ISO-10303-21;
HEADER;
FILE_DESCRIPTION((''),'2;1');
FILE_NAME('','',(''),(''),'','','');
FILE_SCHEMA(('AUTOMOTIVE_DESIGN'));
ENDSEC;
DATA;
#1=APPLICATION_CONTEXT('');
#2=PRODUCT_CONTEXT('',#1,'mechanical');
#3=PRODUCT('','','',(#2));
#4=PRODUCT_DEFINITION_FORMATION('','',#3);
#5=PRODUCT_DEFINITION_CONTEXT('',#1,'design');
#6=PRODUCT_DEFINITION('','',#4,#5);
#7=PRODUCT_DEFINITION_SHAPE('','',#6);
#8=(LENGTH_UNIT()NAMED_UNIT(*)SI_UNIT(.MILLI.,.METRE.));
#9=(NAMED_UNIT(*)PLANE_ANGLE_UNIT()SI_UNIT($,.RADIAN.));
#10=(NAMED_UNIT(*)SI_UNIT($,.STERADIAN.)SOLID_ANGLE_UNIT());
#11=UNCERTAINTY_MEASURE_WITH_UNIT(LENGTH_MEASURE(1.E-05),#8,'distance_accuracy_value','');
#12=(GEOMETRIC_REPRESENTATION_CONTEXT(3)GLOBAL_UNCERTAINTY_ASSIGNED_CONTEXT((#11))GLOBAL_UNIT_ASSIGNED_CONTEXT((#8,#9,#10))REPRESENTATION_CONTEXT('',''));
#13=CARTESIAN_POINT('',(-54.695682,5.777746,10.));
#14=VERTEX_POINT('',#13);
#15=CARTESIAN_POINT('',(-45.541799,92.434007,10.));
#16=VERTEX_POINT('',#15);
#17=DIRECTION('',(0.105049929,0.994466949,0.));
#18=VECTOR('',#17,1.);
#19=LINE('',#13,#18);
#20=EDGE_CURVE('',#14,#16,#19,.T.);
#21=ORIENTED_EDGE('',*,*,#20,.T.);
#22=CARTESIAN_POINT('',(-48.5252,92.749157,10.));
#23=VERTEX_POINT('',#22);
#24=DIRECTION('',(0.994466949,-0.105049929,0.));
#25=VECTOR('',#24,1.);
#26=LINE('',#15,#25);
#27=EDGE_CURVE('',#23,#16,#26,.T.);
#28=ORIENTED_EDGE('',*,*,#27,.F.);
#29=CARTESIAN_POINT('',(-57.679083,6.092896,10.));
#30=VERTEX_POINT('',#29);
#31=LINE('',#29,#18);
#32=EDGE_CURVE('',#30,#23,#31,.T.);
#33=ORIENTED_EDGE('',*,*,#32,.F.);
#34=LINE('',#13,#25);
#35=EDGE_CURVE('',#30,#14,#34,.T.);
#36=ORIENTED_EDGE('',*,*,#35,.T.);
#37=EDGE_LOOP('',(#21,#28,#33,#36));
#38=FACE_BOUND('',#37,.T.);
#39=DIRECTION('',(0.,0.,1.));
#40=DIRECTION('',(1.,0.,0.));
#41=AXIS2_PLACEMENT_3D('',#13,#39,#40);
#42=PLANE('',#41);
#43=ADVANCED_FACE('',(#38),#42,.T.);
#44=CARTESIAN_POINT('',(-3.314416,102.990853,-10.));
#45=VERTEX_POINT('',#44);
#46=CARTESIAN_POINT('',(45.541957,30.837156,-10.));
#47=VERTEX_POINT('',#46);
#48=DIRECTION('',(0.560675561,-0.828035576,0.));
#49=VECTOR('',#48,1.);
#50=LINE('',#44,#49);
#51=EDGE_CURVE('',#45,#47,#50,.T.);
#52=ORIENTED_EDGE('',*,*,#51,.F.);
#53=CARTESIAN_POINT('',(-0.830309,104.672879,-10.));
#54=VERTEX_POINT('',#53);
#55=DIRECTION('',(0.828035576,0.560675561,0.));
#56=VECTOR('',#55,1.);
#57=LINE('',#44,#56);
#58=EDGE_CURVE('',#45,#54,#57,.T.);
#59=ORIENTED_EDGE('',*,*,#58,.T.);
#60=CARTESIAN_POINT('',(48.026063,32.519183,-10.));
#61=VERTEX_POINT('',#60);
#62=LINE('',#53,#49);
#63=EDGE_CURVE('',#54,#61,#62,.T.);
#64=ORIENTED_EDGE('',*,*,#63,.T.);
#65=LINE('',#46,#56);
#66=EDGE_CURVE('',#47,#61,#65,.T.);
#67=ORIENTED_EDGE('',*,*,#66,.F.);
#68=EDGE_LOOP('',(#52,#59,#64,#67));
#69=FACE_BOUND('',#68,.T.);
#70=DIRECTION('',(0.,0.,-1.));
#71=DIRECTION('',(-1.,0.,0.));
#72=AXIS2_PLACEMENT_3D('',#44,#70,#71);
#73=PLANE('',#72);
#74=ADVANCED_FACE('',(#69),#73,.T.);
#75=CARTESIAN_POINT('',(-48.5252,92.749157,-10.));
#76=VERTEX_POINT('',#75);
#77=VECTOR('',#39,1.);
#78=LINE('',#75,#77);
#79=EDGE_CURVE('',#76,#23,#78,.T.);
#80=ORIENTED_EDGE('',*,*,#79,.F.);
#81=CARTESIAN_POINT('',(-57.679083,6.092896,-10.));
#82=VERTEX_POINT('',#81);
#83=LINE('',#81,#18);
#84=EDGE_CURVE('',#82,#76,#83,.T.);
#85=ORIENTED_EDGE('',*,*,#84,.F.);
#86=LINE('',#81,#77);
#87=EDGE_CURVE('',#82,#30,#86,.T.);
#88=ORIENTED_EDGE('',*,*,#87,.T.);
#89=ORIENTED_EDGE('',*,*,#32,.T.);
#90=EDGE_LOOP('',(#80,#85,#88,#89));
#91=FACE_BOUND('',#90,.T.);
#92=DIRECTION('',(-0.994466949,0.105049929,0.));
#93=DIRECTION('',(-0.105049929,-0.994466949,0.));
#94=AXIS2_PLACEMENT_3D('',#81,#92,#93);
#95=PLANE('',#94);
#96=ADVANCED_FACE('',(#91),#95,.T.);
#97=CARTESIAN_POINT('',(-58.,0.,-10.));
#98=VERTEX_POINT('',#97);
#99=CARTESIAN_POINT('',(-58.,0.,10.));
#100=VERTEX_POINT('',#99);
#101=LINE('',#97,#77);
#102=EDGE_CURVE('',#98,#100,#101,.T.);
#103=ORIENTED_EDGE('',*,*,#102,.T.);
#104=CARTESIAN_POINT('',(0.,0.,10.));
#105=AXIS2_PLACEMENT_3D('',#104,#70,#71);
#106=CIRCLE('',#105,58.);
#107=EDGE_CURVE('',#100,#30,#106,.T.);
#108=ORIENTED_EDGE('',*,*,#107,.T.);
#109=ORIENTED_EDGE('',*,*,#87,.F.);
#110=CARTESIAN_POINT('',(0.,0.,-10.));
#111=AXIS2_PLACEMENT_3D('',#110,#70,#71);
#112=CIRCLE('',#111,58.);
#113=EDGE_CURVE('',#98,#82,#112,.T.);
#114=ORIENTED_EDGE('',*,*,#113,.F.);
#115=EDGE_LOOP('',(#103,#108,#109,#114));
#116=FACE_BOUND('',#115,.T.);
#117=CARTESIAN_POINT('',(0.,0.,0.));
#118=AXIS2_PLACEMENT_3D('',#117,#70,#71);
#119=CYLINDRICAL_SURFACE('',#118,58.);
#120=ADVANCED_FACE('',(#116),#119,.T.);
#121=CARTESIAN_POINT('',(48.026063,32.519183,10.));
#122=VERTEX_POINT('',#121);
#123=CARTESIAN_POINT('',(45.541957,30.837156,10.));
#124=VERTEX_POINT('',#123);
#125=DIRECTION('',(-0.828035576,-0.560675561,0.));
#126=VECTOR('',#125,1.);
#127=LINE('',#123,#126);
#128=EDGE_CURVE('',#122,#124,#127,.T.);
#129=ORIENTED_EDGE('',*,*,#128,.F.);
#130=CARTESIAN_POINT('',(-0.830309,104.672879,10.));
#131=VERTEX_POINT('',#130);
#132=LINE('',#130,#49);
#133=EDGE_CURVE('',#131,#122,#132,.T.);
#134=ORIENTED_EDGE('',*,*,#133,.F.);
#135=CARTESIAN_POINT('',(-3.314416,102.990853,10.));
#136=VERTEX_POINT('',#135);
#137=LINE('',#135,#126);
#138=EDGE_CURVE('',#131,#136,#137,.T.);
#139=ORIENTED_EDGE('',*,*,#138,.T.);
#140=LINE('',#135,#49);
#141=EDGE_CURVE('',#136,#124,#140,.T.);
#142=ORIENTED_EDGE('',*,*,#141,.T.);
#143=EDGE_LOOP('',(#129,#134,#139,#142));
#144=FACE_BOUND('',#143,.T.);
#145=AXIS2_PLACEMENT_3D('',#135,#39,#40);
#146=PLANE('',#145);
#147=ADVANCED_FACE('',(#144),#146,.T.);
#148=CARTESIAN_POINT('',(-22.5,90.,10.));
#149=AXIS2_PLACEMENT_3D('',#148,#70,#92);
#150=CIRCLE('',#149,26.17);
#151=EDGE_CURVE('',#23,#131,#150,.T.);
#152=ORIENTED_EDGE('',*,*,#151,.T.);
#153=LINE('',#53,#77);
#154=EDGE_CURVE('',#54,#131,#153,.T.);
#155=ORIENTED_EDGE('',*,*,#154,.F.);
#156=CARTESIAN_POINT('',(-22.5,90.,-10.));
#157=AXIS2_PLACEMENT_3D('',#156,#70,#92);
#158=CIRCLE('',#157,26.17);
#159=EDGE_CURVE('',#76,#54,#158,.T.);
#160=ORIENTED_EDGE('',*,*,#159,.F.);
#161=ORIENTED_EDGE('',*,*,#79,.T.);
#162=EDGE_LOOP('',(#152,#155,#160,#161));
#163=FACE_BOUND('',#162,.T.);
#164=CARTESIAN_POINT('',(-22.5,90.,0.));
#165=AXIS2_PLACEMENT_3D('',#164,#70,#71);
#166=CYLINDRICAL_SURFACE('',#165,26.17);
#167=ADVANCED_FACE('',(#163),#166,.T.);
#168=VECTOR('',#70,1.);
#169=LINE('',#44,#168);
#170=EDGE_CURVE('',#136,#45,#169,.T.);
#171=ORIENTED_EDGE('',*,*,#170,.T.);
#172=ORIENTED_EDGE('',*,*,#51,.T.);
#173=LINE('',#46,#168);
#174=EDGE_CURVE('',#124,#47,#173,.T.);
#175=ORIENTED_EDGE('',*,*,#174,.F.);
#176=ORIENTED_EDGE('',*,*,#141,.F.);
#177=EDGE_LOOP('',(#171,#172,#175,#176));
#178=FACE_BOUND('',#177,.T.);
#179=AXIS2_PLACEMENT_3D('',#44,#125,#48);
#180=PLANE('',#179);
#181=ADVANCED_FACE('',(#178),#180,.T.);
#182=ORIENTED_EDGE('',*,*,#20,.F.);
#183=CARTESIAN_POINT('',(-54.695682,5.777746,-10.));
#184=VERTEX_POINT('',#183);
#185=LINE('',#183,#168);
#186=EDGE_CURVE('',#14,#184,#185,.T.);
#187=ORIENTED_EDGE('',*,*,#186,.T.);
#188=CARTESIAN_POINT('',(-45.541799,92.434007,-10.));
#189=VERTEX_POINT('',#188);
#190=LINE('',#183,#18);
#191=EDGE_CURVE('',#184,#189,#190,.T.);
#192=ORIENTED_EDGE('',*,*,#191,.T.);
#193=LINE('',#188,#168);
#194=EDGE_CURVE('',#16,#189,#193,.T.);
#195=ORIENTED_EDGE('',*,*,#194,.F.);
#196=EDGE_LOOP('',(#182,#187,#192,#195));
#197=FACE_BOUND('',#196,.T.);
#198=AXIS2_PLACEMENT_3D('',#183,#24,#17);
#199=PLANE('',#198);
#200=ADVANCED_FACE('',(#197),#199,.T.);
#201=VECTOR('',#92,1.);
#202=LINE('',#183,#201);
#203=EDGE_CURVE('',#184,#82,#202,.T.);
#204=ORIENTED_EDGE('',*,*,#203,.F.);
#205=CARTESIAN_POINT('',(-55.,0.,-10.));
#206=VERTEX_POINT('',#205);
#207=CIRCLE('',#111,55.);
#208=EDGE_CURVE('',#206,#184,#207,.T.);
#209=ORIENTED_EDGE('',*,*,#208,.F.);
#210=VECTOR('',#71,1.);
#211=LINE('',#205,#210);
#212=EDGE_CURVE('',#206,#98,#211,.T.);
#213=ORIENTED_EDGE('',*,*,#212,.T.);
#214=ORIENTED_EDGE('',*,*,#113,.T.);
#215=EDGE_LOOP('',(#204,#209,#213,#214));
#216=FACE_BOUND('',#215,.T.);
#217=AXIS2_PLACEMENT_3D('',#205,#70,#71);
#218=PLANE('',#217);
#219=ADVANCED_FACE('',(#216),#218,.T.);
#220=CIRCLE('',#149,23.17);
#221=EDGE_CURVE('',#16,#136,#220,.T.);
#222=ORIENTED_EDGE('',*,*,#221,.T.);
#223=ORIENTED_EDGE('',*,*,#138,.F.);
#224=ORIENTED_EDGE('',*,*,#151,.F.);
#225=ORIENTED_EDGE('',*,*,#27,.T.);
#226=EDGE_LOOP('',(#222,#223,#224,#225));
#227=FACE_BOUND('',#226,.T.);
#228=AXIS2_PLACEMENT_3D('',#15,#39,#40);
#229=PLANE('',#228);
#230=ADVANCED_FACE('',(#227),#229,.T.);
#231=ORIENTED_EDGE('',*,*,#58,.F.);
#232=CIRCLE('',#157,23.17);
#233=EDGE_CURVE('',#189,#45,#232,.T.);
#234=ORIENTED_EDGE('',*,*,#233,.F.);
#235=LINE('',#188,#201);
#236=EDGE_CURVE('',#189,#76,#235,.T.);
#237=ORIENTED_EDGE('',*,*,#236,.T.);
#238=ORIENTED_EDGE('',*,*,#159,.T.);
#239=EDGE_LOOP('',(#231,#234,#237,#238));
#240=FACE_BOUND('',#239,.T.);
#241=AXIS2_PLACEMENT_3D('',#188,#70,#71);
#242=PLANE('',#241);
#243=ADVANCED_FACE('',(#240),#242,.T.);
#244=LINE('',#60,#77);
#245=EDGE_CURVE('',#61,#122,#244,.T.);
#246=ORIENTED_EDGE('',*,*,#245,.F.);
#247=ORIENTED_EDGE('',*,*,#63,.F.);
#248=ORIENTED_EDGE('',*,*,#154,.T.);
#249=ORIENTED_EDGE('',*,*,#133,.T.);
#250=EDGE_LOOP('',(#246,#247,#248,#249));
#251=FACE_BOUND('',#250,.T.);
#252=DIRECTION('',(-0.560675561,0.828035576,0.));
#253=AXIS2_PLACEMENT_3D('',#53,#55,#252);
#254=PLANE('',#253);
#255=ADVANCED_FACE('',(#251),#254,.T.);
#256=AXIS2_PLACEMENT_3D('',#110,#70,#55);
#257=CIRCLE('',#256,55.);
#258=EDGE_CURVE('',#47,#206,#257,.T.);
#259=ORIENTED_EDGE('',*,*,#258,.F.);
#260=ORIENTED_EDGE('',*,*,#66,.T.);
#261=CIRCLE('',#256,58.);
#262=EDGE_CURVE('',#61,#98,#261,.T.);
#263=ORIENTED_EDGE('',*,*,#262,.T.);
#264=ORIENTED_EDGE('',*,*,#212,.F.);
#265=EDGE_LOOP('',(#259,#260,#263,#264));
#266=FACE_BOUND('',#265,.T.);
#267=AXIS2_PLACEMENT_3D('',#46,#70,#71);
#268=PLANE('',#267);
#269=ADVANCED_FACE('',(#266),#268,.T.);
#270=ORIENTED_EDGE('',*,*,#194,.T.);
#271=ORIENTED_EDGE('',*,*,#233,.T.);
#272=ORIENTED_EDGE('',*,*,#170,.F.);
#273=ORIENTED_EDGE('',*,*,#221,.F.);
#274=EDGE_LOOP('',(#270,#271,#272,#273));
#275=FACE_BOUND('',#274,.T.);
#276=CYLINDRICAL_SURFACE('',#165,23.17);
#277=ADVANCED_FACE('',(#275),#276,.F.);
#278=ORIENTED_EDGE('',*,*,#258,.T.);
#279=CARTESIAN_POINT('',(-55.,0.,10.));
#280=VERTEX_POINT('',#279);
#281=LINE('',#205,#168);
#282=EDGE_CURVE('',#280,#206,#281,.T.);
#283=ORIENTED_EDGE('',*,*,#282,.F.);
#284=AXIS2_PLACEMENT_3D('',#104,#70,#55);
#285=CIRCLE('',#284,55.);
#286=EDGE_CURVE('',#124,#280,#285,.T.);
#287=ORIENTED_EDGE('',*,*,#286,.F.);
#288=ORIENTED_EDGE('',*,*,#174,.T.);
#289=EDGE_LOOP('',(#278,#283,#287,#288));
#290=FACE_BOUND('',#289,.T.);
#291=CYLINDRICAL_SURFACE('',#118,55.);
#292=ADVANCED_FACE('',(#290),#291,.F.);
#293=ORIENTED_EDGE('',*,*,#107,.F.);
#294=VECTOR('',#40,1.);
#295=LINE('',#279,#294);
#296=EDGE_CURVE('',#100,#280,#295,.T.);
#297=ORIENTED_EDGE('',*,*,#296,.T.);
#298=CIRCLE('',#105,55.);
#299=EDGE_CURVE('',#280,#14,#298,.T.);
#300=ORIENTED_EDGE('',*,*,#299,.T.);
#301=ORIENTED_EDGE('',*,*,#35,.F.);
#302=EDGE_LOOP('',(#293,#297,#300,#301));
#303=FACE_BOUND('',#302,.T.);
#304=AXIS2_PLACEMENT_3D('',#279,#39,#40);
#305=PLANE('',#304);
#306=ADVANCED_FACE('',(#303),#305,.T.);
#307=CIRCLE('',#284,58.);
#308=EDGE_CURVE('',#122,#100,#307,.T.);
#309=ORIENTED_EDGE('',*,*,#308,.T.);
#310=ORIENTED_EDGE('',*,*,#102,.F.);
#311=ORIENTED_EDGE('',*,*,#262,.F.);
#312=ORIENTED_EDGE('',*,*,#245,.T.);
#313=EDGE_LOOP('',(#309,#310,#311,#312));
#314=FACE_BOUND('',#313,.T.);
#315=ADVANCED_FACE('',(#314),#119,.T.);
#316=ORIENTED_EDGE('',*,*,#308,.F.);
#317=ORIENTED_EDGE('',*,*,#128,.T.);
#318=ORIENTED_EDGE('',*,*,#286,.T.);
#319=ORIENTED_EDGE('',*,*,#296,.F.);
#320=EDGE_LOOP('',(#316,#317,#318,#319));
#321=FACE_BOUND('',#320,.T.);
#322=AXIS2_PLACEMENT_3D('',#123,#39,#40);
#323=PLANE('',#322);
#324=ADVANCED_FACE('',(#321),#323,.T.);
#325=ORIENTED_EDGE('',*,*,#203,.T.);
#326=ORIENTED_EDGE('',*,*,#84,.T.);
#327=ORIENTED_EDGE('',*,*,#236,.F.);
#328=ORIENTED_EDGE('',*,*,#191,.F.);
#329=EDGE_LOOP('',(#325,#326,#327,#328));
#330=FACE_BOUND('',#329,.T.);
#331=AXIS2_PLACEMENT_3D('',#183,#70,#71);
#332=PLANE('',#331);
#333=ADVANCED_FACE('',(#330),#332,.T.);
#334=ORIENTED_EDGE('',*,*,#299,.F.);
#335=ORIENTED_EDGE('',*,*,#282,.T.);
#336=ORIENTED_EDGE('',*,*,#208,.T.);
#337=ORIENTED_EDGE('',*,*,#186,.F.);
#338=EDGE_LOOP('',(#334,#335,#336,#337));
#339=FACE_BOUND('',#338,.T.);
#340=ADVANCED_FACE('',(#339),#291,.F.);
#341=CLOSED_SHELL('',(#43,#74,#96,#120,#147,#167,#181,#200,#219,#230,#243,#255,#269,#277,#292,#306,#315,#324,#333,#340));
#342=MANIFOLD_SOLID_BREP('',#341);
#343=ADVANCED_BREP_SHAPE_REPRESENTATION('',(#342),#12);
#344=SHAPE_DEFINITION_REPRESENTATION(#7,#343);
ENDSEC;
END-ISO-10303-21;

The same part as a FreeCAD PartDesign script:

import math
import FreeCAD as App
import Part
import Sketcher

V = App.Vector
Q = App.Units.Quantity

doc = App.newDocument("Part")
body = doc.addObject("PartDesign::Body", "Body")

# Sketch on XZ plane
sketch1 = doc.addObject("Sketcher::SketchObject", "Sketch")
body.addObject(sketch1)
sketch1.AttachmentSupport = (doc.XZ_Plane, [""])
sketch1.MapMode = "FlatFace"
sketch1.addGeometry([
    Part.LineSegment(V(-58, -10, 0), V(-58, 10, 0)),
    Part.LineSegment(V(-58, 10, 0), V(-55, 10, 0)),
    Part.LineSegment(V(-55, 10, 0), V(-55, -10, 0)),
    Part.LineSegment(V(-55, -10, 0), V(-58, -10, 0)),
], False)
sketch1.addConstraint([
    Sketcher.Constraint("Coincident", 0, 2, 1, 1),
    Sketcher.Constraint("Coincident", 1, 2, 2, 1),
    Sketcher.Constraint("Coincident", 2, 2, 3, 1),
    Sketcher.Constraint("Coincident", 3, 2, 0, 1),
    Sketcher.Constraint("Vertical", 0),
    Sketcher.Constraint("Horizontal", 1),
    Sketcher.Constraint("Vertical", 2),
    Sketcher.Constraint("Horizontal", 3),
    Sketcher.Constraint("DistanceX", 1, 1, 1, 2, Q("3 mm")),
    Sketcher.Constraint("DistanceY", 0, 1, 0, 2, Q("20 mm")),
    Sketcher.Constraint("DistanceX", 0, 2, -1, 1, Q("58 mm")),
    Sketcher.Constraint("DistanceY", -1, 1, 0, 2, Q("10 mm")),
])

# Sketch on XY plane
sketch2 = doc.addObject("Sketcher::SketchObject", "Sketch001")
body.addObject(sketch2)
sketch2.AttachmentSupport = (doc.XY_Plane, [""])
sketch2.MapMode = "FlatFace"
sketch2.addGeometry([
    Part.LineSegment(V(-57, 6, 0), V(-48, 93, 0)),
    Part.ArcOfCircle(Part.Circle(V(-22, 90, 0), V(0, 0, 1), 25), math.radians(34), math.radians(174)),
    Part.LineSegment(V(-1, 104, 0), V(47, 32, 0)),
    Part.ArcOfCircle(Part.Circle(V(0, 0, 0), V(0, 0, 1), 57), math.radians(174), math.radians(394)),
], False)
sketch2.addConstraint([
    Sketcher.Constraint("Tangent", 0, 2, 1, 2),
    Sketcher.Constraint("Tangent", 1, 1, 2, 1),
    Sketcher.Constraint("Tangent", 2, 2, 3, 2),
    Sketcher.Constraint("Tangent", 3, 1, 0, 1),
    Sketcher.Constraint("Coincident", 3, 3, -1, 1),
    Sketcher.Constraint("DistanceY", -1, 1, 1, 3, Q("90 mm")),
    Sketcher.Constraint("Radius", 1, Q("25.485 mm")),
    Sketcher.Constraint("Radius", 3, Q("57.315 mm")),
    Sketcher.Constraint("DistanceX", 1, 3, -1, 1, Q("22.5 mm")),
])
doc.recompute()

additivepipe = doc.addObject("PartDesign::AdditivePipe", "AdditivePipe")
body.addObject(additivepipe)
additivepipe.Profile = sketch1
additivepipe.Spine = (sketch2, ["Edge1", "Edge2", "Edge3", "Edge4"])

doc.recompute()
